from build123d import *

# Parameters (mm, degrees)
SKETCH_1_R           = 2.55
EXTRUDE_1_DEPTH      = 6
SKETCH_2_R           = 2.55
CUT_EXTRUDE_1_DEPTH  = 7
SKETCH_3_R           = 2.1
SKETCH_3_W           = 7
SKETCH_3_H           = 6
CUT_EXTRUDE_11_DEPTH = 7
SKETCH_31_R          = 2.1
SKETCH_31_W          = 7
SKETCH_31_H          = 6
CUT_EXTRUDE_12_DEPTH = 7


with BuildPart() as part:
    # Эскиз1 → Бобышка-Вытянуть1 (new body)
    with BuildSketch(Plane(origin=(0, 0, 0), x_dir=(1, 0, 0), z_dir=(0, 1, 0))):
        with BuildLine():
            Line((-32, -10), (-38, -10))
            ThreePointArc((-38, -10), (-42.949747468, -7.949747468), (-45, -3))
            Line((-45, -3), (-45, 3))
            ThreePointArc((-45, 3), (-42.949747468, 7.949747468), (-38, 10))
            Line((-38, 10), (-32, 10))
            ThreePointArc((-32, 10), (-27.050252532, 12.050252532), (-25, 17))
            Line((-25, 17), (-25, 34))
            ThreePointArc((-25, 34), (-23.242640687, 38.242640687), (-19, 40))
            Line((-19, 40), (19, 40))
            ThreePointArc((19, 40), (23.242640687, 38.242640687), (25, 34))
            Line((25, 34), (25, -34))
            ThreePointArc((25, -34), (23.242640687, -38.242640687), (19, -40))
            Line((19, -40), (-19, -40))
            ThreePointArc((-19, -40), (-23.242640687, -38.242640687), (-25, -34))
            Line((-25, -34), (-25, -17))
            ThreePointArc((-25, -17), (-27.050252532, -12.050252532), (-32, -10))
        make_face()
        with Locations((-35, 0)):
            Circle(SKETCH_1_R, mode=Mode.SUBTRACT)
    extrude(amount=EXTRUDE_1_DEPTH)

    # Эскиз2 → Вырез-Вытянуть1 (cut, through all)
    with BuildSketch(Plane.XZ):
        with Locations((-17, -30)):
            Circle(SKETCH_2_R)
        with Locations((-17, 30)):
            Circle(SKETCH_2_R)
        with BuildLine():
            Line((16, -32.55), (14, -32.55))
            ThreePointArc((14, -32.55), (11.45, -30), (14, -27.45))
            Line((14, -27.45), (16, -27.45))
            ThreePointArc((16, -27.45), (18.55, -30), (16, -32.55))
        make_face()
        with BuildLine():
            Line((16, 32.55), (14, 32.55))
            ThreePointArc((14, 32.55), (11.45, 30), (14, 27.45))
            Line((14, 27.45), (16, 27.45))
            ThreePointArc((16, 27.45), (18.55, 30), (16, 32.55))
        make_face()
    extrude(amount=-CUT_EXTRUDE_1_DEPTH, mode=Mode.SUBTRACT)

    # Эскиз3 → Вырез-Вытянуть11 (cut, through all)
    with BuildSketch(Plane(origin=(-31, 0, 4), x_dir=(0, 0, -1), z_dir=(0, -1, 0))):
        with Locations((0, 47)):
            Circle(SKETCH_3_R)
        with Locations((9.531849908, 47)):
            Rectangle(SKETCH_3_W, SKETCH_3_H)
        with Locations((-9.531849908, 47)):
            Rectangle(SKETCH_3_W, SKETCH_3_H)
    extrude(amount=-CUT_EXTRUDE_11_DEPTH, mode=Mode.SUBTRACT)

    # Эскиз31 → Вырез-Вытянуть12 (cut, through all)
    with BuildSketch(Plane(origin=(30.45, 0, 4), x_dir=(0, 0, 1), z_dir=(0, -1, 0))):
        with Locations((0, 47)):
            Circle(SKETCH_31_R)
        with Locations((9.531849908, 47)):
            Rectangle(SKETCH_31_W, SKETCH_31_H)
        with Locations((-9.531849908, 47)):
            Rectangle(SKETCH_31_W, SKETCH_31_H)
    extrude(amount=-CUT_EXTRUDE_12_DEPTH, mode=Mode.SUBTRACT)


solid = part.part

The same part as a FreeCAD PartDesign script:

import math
import FreeCAD as App
import Part
import Sketcher
from FreeCAD import Vector

doc = App.newDocument("Part")
body = doc.addObject("PartDesign::Body", "Body")

# Sketch on XZ plane
sketch1 = doc.addObject("Sketcher::SketchObject", "Sketch")
body.addObject(sketch1)
sketch1.AttachmentSupport = (doc.XZ_Plane, [""])
sketch1.MapMode = "FlatFace"
sketch1.addGeometry(Part.LineSegment(Vector(-38, 10, 0), Vector(-32, 10, 0)), False)
sketch1.addGeometry(Part.ArcOfCircle(Part.Circle(Vector(-32, 17, 0), Vector(0, 0, 1), 7), math.radians(-90), math.radians(0)), False)
sketch1.addGeometry(Part.LineSegment(Vector(-25, 17, 0), Vector(-25, 34, 0)), False)
sketch1.addGeometry(Part.ArcOfCircle(Part.Circle(Vector(-19, 34, 0), Vector(0, 0, 1), 6), math.radians(90), math.radians(180)), False)
sketch1.addGeometry(Part.LineSegment(Vector(-19, 40, 0), Vector(19, 40, 0)), False)
sketch1.addGeometry(Part.ArcOfCircle(Part.Circle(Vector(19, 34, 0), Vector(0, 0, 1), 6), math.radians(0), math.radians(90)), False)
sketch1.addGeometry(Part.LineSegment(Vector(25, 34, 0), Vector(25, -34, 0)), False)
sketch1.addGeometry(Part.ArcOfCircle(Part.Circle(Vector(19, -34, 0), Vector(0, 0, 1), 6), math.radians(-90), math.radians(0)), False)
sketch1.addGeometry(Part.LineSegment(Vector(19, -40, 0), Vector(-19, -40, 0)), False)
sketch1.addGeometry(Part.ArcOfCircle(Part.Circle(Vector(-19, -34, 0), Vector(0, 0, 1), 6), math.radians(180), math.radians(270)), False)
sketch1.addGeometry(Part.LineSegment(Vector(-25, -34, 0), Vector(-25, -17, 0)), False)
sketch1.addGeometry(Part.ArcOfCircle(Part.Circle(Vector(-32, -17, 0), Vector(0, 0, 1), 7), math.radians(0), math.radians(90)), False)
sketch1.addGeometry(Part.LineSegment(Vector(-32, -10, 0), Vector(-38, -10, 0)), False)
sketch1.addGeometry(Part.ArcOfCircle(Part.Circle(Vector(-38, -3, 0), Vector(0, 0, 1), 7), math.radians(-180), math.radians(-90)), False)
sketch1.addGeometry(Part.LineSegment(Vector(-45, -3, 0), Vector(-45, 3, 0)), False)
sketch1.addGeometry(Part.ArcOfCircle(Part.Circle(Vector(-38, 3, 0), Vector(0, 0, 1), 7), math.radians(90), math.radians(180)), False)
sketch1.addGeometry(Part.Circle(Vector(-35, 0, 0), Vector(0, 0, 1), 2.5), False)
sketch1.addConstraint(Sketcher.Constraint("Tangent", 0, 2, 1, 1))
sketch1.addConstraint(Sketcher.Constraint("Tangent", 1, 2, 2, 1))
sketch1.addConstraint(Sketcher.Constraint("Tangent", 2, 2, 3, 2))
sketch1.addConstraint(Sketcher.Constraint("Tangent", 3, 1, 4, 1))
sketch1.addConstraint(Sketcher.Constraint("Tangent", 4, 2, 5, 2))
sketch1.addConstraint(Sketcher.Constraint("Tangent", 5, 1, 6, 1))
sketch1.addConstraint(Sketcher.Constraint("Tangent", 6, 2, 7, 2))
sketch1.addConstraint(Sketcher.Constraint("Tangent", 7, 1, 8, 1))
sketch1.addConstraint(Sketcher.Constraint("Tangent", 8, 2, 9, 2))
sketch1.addConstraint(Sketcher.Constraint("Tangent", 9, 1, 10, 1))
sketch1.addConstraint(Sketcher.Constraint("Tangent", 10, 2, 11, 1))
sketch1.addConstraint(Sketcher.Constraint("Tangent", 11, 2, 12, 1))
sketch1.addConstraint(Sketcher.Constraint("Tangent", 12, 2, 13, 2))
sketch1.addConstraint(Sketcher.Constraint("Tangent", 13, 1, 14, 1))
sketch1.addConstraint(Sketcher.Constraint("Tangent", 14, 2, 15, 2))
sketch1.addConstraint(Sketcher.Constraint("Tangent", 15, 1, 0, 1))
sketch1.addConstraint(Sketcher.Constraint("Horizontal", 0))
sketch1.addConstraint(Sketcher.Constraint("Vertical", 2))
sketch1.addConstraint(Sketcher.Constraint("Horizontal", 4))
sketch1.addConstraint(Sketcher.Constraint("Vertical", 6))
sketch1.addConstraint(Sketcher.Constraint("Horizontal", 8))
sketch1.addConstraint(Sketcher.Constraint("Vertical", 10))
sketch1.addConstraint(Sketcher.Constraint("Horizontal", 12))
sketch1.addConstraint(Sketcher.Constraint("Vertical", 14))
sketch1.addConstraint(Sketcher.Constraint("Equal", 3, 5))
sketch1.addConstraint(Sketcher.Constraint("Equal", 5, 7))
sketch1.addConstraint(Sketcher.Constraint("Equal", 7, 9))
sketch1.addConstraint(Sketcher.Constraint("Equal", 1, 11))
sketch1.addConstraint(Sketcher.Constraint("Equal", 11, 13))
sketch1.addConstraint(Sketcher.Constraint("Equal", 13, 15))
sketch1.addConstraint(Sketcher.Constraint("Symmetric", 3, 3, 7, 3, -1, 1))
sketch1.addConstraint(Sketcher.Constraint("Symmetric", 1, 3, 11, 3, -1))
sketch1.addConstraint(Sketcher.Constraint("PointOnObject", 16, 3, -1))
sketch1.addConstraint(Sketcher.Constraint("Equal", 12, 14))
sketch1.addConstraint(Sketcher.Constraint("Radius", 1, 7.0))
sketch1.addConstraint(Sketcher.Constraint("Radius", 3, 6.0))
sketch1.addConstraint(Sketcher.Constraint("Diameter", 16, 5.1))
sketch1.addConstraint(Sketcher.Constraint("DistanceX", 0, 1, 0, 2, 6.0))
sketch1.addConstraint(Sketcher.Constraint("DistanceX", 4, 1, 4, 2, 38.0))
sketch1.addConstraint(Sketcher.Constraint("DistanceY", 2, 1, 2, 2, 17.0))
sketch1.addConstraint(Sketcher.Constraint("DistanceX", 16, 3, -1, 1, 35.0))
pad1 = doc.addObject("PartDesign::Pad", "Pad")
body.addObject(pad1)
pad1.Profile = sketch1
pad1.Length = 6
pad1.Reversed = True

# Sketch on XZ plane
sketch2 = doc.addObject("Sketcher::SketchObject", "Sketch001")
body.addObject(sketch2)
sketch2.AttachmentSupport = (doc.XZ_Plane, [""])
sketch2.MapMode = "FlatFace"
sketch2.addGeometry(Part.Circle(Vector(-17, -30, 0), Vector(0, 0, 1), 2.5), False)
sketch2.addGeometry(Part.Circle(Vector(-17, 30, 0), Vector(0, 0, 1), 2.5), False)
sketch2.addGeometry(Part.LineSegment(Vector(14, -32.5, 0), Vector(16, -32.5, 0)), False)
sketch2.addGeometry(Part.ArcOfCircle(Part.Circle(Vector(16, -30, 0), Vector(0, 0, 1), 2.5), math.radians(-90), math.radians(90)), False)
sketch2.addGeometry(Part.LineSegment(Vector(16, -27.4, 0), Vector(14, -27.4, 0)), False)
sketch2.addGeometry(Part.ArcOfCircle(Part.Circle(Vector(14, -30, 0), Vector(0, 0, 1), 2.5), math.radians(90), math.radians(270)), False)
sketch2.addGeometry(Part.LineSegment(Vector(16, 32.5, 0), Vector(14, 32.5, 0)), False)
sketch2.addGeometry(Part.ArcOfCircle(Part.Circle(Vector(14, 30, 0), Vector(0, 0, 1), 2.5), math.radians(90), math.radians(270)), False)
sketch2.addGeometry(Part.LineSegment(Vector(14, 27.4, 0), Vector(16, 27.4, 0)), False)
sketch2.addGeometry(Part.ArcOfCircle(Part.Circle(Vector(16, 30, 0), Vector(0, 0, 1), 2.5), math.radians(-90), math.radians(90)), False)
sketch2.addConstraint(Sketcher.Constraint("Tangent", 2, 2, 3, 1))
sketch2.addConstraint(Sketcher.Constraint("Tangent", 3, 2, 4, 1))
sketch2.addConstraint(Sketcher.Constraint("Tangent", 4, 2, 5, 1))
sketch2.addConstraint(Sketcher.Constraint("Tangent", 5, 2, 2, 1))
sketch2.addConstraint(Sketcher.Constraint("Tangent", 6, 2, 7, 1))
sketch2.addConstraint(Sketcher.Constraint("Tangent", 7, 2, 8, 1))
sketch2.addConstraint(Sketcher.Constraint("Tangent", 8, 2, 9, 1))
sketch2.addConstraint(Sketcher.Constraint("Tangent", 9, 2, 6, 1))
sketch2.addConstraint(Sketcher.Constraint("Horizontal", 2))
sketch2.addConstraint(Sketcher.Constraint("Horizontal", 4))
sketch2.addConstraint(Sketcher.Constraint("Horizontal", 6))
sketch2.addConstraint(Sketcher.Constraint("Horizontal", 8))
sketch2.addConstraint(Sketcher.Constraint("Equal", 0, 1))
sketch2.addConstraint(Sketcher.Constraint("Equal", 1, 3))
sketch2.addConstraint(Sketcher.Constraint("Equal", 5, 7))
sketch2.addConstraint(Sketcher.Constraint("Symmetric", 0, 3, 1, 3, -1))
sketch2.addConstraint(Sketcher.Constraint("Symmetric", 5, 3, 7, 3, -1))
sketch2.addConstraint(Sketcher.Constraint("Horizontal", 0, 3, 3, 3))
sketch2.addConstraint(Sketcher.Constraint("Vertical", 3, 3, 9, 3))
sketch2.addConstraint(Sketcher.Constraint("Diameter", 0, 5.1))
sketch2.addConstraint(Sketcher.Constraint("DistanceX", 2, 1, 2, 2, 2.0))
sketch2.addConstraint(Sketcher.Constraint("DistanceX", 0, 3, -1, 1, 17.0))
sketch2.addConstraint(Sketcher.Constraint("DistanceY", 0, 3, -1, 1, 30.0))
sketch2.addConstraint(Sketcher.Constraint("DistanceX", -1, 1, 3, 3, 16.0))
pocket1 = doc.addObject("PartDesign::Pocket", "Pocket")
body.addObject(pocket1)
pocket1.Profile = sketch2
pocket1.Type = "ThroughAll"

# Sketch on XZ plane
sketch3 = doc.addObject("Sketcher::SketchObject", "Sketch002")
body.addObject(sketch3)
sketch3.AttachmentSupport = (doc.XZ_Plane, [""])
sketch3.MapMode = "FlatFace"
sketch3.addGeometry(Part.Circle(Vector(16, 4, 0), Vector(0, 0, 1), 2.1), False)
sketch3.addGeometry(Part.LineSegment(Vector(19, -2, 0), Vector(13, -2, 0)), False)
sketch3.addGeometry(Part.LineSegment(Vector(13, -2, 0), Vector(13, -9, 0)), False)
sketch3.addGeometry(Part.LineSegment(Vector(13, -9, 0), Vector(19, -9, 0)), False)
sketch3.addGeometry(Part.LineSegment(Vector(19, -9, 0), Vector(19, -2, 0)), False)
sketch3.addGeometry(Part.LineSegment(Vector(19, 17, 0), Vector(13, 17, 0)), False)
sketch3.addGeometry(Part.LineSegment(Vector(13, 17, 0), Vector(13, 10, 0)), False)
sketch3.addGeometry(Part.LineSegment(Vector(13, 10, 0), Vector(19, 10, 0)), False)
sketch3.addGeometry(Part.LineSegment(Vector(19, 10, 0), Vector(19, 17, 0)), False)
sketch3.addConstraint(Sketcher.Constraint("Coincident", 1, 2, 2, 1))
sketch3.addConstraint(Sketcher.Constraint("Coincident", 2, 2, 3, 1))
sketch3.addConstraint(Sketcher.Constraint("Coincident", 3, 2, 4, 1))
sketch3.addConstraint(Sketcher.Constraint("Coincident", 4, 2, 1, 1))
sketch3.addConstraint(Sketcher.Constraint("Coincident", 5, 2, 6, 1))
sketch3.addConstraint(Sketcher.Constraint("Coincident", 6, 2, 7, 1))
sketch3.addConstraint(Sketcher.Constraint("Coincident", 7, 2, 8, 1))
sketch3.addConstraint(Sketcher.Constraint("Coincident", 8, 2, 5, 1))
sketch3.addConstraint(Sketcher.Constraint("Horizontal", 1))
sketch3.addConstraint(Sketcher.Constraint("Vertical", 2))
sketch3.addConstraint(Sketcher.Constraint("Horizontal", 3))
sketch3.addConstraint(Sketcher.Constraint("Vertical", 4))
sketch3.addConstraint(Sketcher.Constraint("Horizontal", 5))
sketch3.addConstraint(Sketcher.Constraint("Vertical", 6))
sketch3.addConstraint(Sketcher.Constraint("Horizontal", 7))
sketch3.addConstraint(Sketcher.Constraint("Vertical", 8))
sketch3.addConstraint(Sketcher.Constraint("Vertical", 2, 2, 5, 2))
sketch3.addConstraint(Sketcher.Constraint("Vertical", 4, 2, 7, 2))
sketch3.addConstraint(Sketcher.Constraint("Equal", 4, 6))
sketch3.addConstraint(Sketcher.Constraint("Diameter", 0, 4.2))
sketch3.addConstraint(Sketcher.Constraint("DistanceX", 1, 2, 1, 1, 6.0))
sketch3.addConstraint(Sketcher.Constraint("DistanceY", 2, 2, 2, 1, 7.0))
sketch3.addConstraint(Sketcher.Constraint("DistanceX", -1, 1, 0, 3, 16.0))
sketch3.addConstraint(Sketcher.Constraint("DistanceY", -1, 1, 0, 3, 4.0))
sketch3.addConstraint(Sketcher.Constraint("DistanceX", -1, 1, 1, 2, 13.0))
sketch3.addConstraint(Sketcher.Constraint("DistanceY", 1, 2, 5, 2, 19.0637))
sketch3.addConstraint(Sketcher.Constraint("DistanceY", 1, 2, -1, 1, 2.03185))
pocket2 = doc.addObject("PartDesign::Pocket", "Pocket001")
body.addObject(pocket2)
pocket2.Profile = sketch3
pocket2.Type = "ThroughAll"

# Sketch on XZ plane
sketch4 = doc.addObject("Sketcher::SketchObject", "Sketch003")
body.addObject(sketch4)
sketch4.AttachmentSupport = (doc.XZ_Plane, [""])
sketch4.MapMode = "FlatFace"
sketch4.addGeometry(Part.Circle(Vector(-16.6, 4, 0), Vector(0, 0, 1), 2.1), False)
sketch4.addGeometry(Part.LineSegment(Vector(-19.6, 10, 0), Vector(-13.6, 10, 0)), False)
sketch4.addGeometry(Part.LineSegment(Vector(-13.6, 10, 0), Vector(-13.6, 17, 0)), False)
sketch4.addGeometry(Part.LineSegment(Vector(-13.6, 17, 0), Vector(-19.6, 17, 0)), False)
sketch4.addGeometry(Part.LineSegment(Vector(-19.6, 17, 0), Vector(-19.6, 10, 0)), False)
sketch4.addGeometry(Part.LineSegment(Vector(-19.6, -9, 0), Vector(-13.6, -9, 0)), False)
sketch4.addGeometry(Part.LineSegment(Vector(-13.6, -9, 0), Vector(-13.6, -2, 0)), False)
sketch4.addGeometry(Part.LineSegment(Vector(-13.6, -2, 0), Vector(-19.6, -2, 0)), False)
sketch4.addGeometry(Part.LineSegment(Vector(-19.6, -2, 0), Vector(-19.6, -9, 0)), False)
sketch4.addConstraint(Sketcher.Constraint("Coincident", 1, 2, 2, 1))
sketch4.addConstraint(Sketcher.Constraint("Coincident", 2, 2, 3, 1))
sketch4.addConstraint(Sketcher.Constraint("Coincident", 3, 2, 4, 1))
sketch4.addConstraint(Sketcher.Constraint("Coincident", 4, 2, 1, 1))
sketch4.addConstraint(Sketcher.Constraint("Coincident", 5, 2, 6, 1))
sketch4.addConstraint(Sketcher.Constraint("Coincident", 6, 2, 7, 1))
sketch4.addConstraint(Sketcher.Constraint("Coincident", 7, 2, 8, 1))
sketch4.addConstraint(Sketcher.Constraint("Coincident", 8, 2, 5, 1))
sketch4.addConstraint(Sketcher.Constraint("Horizontal", 1))
sketch4.addConstraint(Sketcher.Constraint("Vertical", 2))
sketch4.addConstraint(Sketcher.Constraint("Horizontal", 3))
sketch4.addConstraint(Sketcher.Constraint("Vertical", 4))
sketch4.addConstraint(Sketcher.Constraint("Horizontal", 5))
sketch4.addConstraint(Sketcher.Constraint("Vertical", 6))
sketch4.addConstraint(Sketcher.Constraint("Horizontal", 7))
sketch4.addConstraint(Sketcher.Constraint("Vertical", 8))
sketch4.addConstraint(Sketcher.Constraint("Vertical", 2, 2, 5, 2))
sketch4.addConstraint(Sketcher.Constraint("Vertical", 4, 2, 7, 2))
sketch4.addConstraint(Sketcher.Constraint("Equal", 4, 6))
sketch4.addConstraint(Sketcher.Constraint("Diameter", 0, 4.2))
sketch4.addConstraint(Sketcher.Constraint("DistanceX", 1, 1, 1, 2, 6.0))
sketch4.addConstraint(Sketcher.Constraint("DistanceY", 2, 1, 2, 2, 7.0))
sketch4.addConstraint(Sketcher.Constraint("DistanceY", -1, 1, 0, 3, 4.0))
sketch4.addConstraint(Sketcher.Constraint("DistanceX", 0, 3, 1, 2, 3.0))
sketch4.addConstraint(Sketcher.Constraint("DistanceX", 0, 3, -1, 1, 16.55))
sketch4.addConstraint(Sketcher.Constraint("DistanceY", 5, 2, 1, 2, 19.0637))
sketch4.addConstraint(Sketcher.Constraint("DistanceY", -1, 1, 1, 2, 10.03185))
pocket3 = doc.addObject("PartDesign::Pocket", "Pocket002")
body.addObject(pocket3)
pocket3.Profile = sketch4
pocket3.Type = "ThroughAll"

doc.recompute()
